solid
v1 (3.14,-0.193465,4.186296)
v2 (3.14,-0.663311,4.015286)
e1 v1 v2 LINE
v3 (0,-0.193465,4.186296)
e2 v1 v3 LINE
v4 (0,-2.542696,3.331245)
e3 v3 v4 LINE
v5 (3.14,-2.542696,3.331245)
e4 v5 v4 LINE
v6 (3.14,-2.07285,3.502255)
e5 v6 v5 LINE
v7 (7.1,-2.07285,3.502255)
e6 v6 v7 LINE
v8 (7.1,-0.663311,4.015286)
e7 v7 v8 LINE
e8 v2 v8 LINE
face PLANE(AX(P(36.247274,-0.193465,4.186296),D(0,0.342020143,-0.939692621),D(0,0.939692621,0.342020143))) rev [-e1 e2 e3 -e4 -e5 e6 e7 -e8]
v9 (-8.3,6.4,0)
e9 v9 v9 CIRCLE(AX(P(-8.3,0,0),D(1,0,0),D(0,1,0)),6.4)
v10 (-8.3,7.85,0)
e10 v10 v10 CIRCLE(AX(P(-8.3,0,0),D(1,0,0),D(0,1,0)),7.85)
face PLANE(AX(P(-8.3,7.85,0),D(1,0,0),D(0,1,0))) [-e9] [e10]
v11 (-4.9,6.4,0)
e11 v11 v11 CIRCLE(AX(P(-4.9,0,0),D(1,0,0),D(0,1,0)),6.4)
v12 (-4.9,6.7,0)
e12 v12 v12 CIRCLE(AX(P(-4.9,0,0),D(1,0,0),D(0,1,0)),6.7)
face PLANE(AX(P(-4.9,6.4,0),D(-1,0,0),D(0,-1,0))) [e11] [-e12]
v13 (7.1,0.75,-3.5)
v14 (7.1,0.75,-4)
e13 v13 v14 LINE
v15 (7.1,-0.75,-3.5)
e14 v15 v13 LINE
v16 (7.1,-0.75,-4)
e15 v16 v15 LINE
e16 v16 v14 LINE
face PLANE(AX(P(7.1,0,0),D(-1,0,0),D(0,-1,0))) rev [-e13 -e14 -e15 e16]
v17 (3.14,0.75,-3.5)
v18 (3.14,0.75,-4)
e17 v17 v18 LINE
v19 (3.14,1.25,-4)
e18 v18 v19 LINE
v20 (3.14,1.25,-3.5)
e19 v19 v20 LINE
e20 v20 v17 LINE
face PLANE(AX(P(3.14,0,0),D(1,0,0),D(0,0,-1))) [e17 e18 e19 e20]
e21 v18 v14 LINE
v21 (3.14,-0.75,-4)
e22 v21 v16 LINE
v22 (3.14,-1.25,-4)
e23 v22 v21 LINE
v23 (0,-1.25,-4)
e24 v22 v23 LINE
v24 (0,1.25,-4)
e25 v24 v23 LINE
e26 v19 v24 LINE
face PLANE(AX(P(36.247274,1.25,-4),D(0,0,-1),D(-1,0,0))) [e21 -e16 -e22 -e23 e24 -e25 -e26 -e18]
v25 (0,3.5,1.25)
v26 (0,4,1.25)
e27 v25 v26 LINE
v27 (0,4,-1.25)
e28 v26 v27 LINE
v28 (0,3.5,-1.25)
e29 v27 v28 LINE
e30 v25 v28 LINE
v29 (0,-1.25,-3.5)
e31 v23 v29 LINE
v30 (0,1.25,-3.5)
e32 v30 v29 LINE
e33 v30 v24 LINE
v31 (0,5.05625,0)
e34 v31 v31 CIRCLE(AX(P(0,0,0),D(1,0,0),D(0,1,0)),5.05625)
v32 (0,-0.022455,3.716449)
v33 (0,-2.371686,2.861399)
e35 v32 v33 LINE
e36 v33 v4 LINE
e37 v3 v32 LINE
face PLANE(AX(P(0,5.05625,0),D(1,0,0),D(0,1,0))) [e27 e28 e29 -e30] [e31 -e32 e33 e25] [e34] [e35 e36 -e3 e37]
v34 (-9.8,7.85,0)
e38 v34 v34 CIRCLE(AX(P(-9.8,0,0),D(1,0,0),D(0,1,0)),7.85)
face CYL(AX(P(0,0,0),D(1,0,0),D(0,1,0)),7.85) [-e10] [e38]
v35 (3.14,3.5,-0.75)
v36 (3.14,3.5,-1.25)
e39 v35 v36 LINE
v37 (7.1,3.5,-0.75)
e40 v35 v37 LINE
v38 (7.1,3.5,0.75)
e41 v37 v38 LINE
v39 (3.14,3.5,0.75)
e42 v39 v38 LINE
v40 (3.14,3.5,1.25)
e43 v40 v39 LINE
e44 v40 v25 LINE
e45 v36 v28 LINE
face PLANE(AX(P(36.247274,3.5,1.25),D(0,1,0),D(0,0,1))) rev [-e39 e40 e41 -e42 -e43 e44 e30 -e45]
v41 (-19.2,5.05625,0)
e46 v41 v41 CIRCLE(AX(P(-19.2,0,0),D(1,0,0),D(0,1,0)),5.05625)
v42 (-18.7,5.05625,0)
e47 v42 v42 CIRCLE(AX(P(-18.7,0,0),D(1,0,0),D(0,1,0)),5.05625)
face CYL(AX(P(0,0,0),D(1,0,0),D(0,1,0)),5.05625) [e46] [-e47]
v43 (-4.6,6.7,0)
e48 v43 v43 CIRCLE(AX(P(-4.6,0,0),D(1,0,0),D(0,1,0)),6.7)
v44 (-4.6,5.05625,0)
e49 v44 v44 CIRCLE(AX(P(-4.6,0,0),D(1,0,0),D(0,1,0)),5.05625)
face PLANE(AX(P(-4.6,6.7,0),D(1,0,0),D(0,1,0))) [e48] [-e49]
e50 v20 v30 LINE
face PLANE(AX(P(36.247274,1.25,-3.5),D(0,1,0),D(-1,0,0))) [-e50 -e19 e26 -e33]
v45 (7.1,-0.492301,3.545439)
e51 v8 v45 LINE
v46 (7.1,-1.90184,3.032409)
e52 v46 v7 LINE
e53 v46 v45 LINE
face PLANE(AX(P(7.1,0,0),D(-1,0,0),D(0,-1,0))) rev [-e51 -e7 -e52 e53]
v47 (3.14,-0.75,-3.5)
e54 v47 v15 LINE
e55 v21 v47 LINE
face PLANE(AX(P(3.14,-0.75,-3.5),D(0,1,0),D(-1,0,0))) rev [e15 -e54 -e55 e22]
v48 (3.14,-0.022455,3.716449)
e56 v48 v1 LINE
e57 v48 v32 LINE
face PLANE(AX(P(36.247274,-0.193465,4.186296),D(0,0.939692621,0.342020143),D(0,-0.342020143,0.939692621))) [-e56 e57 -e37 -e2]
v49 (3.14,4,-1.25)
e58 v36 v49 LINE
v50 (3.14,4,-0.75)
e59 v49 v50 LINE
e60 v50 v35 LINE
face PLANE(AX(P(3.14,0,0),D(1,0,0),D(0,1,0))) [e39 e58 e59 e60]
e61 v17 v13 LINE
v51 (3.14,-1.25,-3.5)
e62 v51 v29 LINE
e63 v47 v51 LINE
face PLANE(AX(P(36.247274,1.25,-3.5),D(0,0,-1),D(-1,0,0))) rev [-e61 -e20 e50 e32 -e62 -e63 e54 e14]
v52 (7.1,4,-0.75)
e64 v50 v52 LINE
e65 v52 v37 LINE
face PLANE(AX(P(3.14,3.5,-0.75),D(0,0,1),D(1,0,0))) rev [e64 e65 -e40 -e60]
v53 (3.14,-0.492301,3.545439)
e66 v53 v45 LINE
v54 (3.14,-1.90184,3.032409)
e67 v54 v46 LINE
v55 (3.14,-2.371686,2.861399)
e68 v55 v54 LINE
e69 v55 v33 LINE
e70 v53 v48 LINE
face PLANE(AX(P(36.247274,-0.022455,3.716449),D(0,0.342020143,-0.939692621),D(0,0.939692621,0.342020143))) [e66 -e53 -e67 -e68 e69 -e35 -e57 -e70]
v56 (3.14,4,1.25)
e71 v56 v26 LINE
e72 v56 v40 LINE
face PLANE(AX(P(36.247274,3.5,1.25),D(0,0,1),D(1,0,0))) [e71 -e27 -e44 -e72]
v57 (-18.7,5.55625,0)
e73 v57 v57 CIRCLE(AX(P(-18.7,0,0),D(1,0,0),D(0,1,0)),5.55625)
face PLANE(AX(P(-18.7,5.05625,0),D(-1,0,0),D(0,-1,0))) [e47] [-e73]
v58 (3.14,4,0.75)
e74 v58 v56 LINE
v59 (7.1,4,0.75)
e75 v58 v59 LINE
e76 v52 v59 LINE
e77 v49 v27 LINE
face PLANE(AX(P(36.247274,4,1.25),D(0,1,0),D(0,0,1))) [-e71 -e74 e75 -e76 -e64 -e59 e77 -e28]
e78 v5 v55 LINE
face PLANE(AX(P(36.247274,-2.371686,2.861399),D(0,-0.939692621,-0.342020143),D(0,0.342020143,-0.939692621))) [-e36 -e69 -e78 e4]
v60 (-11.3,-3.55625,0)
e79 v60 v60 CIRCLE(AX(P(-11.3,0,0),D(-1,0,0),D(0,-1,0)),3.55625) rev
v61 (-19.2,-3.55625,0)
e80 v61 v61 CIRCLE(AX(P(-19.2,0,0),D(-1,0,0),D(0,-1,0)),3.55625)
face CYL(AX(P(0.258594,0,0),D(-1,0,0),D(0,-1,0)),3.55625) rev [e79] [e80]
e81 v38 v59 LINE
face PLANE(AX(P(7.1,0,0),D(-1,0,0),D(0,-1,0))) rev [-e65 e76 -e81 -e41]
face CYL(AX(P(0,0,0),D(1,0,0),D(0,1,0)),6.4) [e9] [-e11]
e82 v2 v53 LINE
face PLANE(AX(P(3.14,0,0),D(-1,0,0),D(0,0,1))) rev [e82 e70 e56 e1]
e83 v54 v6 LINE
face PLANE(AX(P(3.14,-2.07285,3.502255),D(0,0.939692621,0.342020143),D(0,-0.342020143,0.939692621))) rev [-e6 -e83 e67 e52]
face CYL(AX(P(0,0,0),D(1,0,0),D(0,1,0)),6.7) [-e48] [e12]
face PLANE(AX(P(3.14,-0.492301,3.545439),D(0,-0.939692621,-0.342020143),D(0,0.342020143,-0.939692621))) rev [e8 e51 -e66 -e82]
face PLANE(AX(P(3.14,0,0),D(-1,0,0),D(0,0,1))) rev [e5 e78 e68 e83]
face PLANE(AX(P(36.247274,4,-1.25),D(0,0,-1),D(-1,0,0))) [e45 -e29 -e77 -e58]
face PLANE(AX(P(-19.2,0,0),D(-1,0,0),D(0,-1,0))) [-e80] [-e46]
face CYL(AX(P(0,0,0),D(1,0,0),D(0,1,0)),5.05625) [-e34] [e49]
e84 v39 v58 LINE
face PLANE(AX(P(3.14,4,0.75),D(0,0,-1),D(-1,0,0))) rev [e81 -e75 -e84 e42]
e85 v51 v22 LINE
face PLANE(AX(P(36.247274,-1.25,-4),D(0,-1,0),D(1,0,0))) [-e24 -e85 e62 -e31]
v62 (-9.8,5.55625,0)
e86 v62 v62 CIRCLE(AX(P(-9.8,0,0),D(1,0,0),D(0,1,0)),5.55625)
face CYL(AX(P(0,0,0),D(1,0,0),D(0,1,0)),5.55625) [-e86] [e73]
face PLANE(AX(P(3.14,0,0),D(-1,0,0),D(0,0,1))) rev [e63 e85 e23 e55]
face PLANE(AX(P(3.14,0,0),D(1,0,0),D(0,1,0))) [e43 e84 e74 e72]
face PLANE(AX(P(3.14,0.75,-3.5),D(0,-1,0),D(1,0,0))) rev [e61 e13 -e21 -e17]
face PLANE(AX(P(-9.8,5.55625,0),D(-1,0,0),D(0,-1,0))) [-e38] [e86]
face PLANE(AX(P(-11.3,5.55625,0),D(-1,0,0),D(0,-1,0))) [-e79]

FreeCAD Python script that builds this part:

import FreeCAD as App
import Part
import Sketcher
from FreeCAD import Vector
Q = App.Units.Quantity

doc = App.newDocument("Part")
body = doc.addObject("PartDesign::Body", "Body")

# Sketch on XY plane
sketch1 = doc.addObject("Sketcher::SketchObject", "Sketch")
body.addObject(sketch1)
sketch1.AttachmentSupport = (doc.XY_Plane, [""])
sketch1.MapMode = "FlatFace"
sketch1.addGeometry([
    Part.LineSegment(Vector(-19.2, 5.05625, 0), Vector(-19.2, 0, 0)),  # 0
    Part.LineSegment(Vector(-19.2, 0, 0), Vector(0, 0, 0)),  # 1
    Part.LineSegment(Vector(0, 0, 0), Vector(0, 5.05625, 0)),  # 2
    Part.LineSegment(Vector(0, 5.05625, 0), Vector(-4.6, 5.05625, 0)),  # 3
    Part.LineSegment(Vector(-4.6, 5.05625, 0), Vector(-4.6, 6.7, 0)),  # 4
    Part.LineSegment(Vector(-4.6, 6.7, 0), Vector(-4.9, 6.7, 0)),  # 5
    Part.LineSegment(Vector(-4.9, 6.7, 0), Vector(-4.9, 6.4, 0)),  # 6
    Part.LineSegment(Vector(-4.9, 6.4, 0), Vector(-8.3, 6.4, 0)),  # 7
    Part.LineSegment(Vector(-8.3, 6.4, 0), Vector(-8.3, 7.85, 0)),  # 8
    Part.LineSegment(Vector(-8.3, 7.85, 0), Vector(-9.8, 7.85, 0)),  # 9
    Part.LineSegment(Vector(-9.8, 7.85, 0), Vector(-9.8, 5.55625, 0)),  # 10
    Part.LineSegment(Vector(-9.8, 5.55625, 0), Vector(-18.7, 5.55625, 0)),  # 11
    Part.LineSegment(Vector(-18.7, 5.55625, 0), Vector(-18.7, 5.05625, 0)),  # 12
    Part.LineSegment(Vector(-18.7, 5.05625, 0), Vector(-19.2, 5.05625, 0)),  # 13
], False)
sketch1.addConstraint([
    Sketcher.Constraint("Coincident", 0, 2, 1, 1),
    Sketcher.Constraint("Coincident", 1, 2, 2, 1),
    Sketcher.Constraint("Coincident", 2, 2, 3, 1),
    Sketcher.Constraint("Coincident", 3, 2, 4, 1),
    Sketcher.Constraint("Coincident", 4, 2, 5, 1),
    Sketcher.Constraint("Coincident", 5, 2, 6, 1),
    Sketcher.Constraint("Coincident", 6, 2, 7, 1),
    Sketcher.Constraint("Coincident", 7, 2, 8, 1),
    Sketcher.Constraint("Coincident", 8, 2, 9, 1),
    Sketcher.Constraint("Coincident", 9, 2, 10, 1),
    Sketcher.Constraint("Coincident", 10, 2, 11, 1),
    Sketcher.Constraint("Coincident", 11, 2, 12, 1),
    Sketcher.Constraint("Coincident", 12, 2, 13, 1),
    Sketcher.Constraint("Coincident", 13, 2, 0, 1),
    Sketcher.Constraint("Vertical", 0),
    Sketcher.Constraint("Horizontal", 1),
    Sketcher.Constraint("Vertical", 2),
    Sketcher.Constraint("Horizontal", 3),
    Sketcher.Constraint("Vertical", 4),
    Sketcher.Constraint("Horizontal", 5),
    Sketcher.Constraint("Vertical", 6),
    Sketcher.Constraint("Horizontal", 7),
    Sketcher.Constraint("Vertical", 8),
    Sketcher.Constraint("Horizontal", 9),
    Sketcher.Constraint("Vertical", 10),
    Sketcher.Constraint("Horizontal", 11),
    Sketcher.Constraint("Vertical", 12),
    Sketcher.Constraint("Horizontal", 13),
    Sketcher.Constraint("Coincident", 1, 2, -1, 1),
    Sketcher.Constraint("Horizontal", 3, 2, 12, 2),
    Sketcher.Constraint("Equal", 5, 6),
    Sketcher.Constraint("Equal", 13, 12),
    Sketcher.Constraint("DistanceX", 1, 1, 1, 2, Q("19.2 mm")),
    Sketcher.Constraint("DistanceX", 3, 2, 3, 1, Q("4.6 mm")),
    Sketcher.Constraint("DistanceX", 5, 2, 5, 1, Q("0.3 mm")),
    Sketcher.Constraint("DistanceX", 7, 2, 7, 1, Q("3.4 mm")),
    Sketcher.Constraint("DistanceX", 9, 2, 9, 1, Q("1.5 mm")),
    Sketcher.Constraint("DistanceX", 11, 2, 11, 1, Q("8.9 mm")),
    Sketcher.Constraint("DistanceY", 8, 1, 8, 2, Q("1.45 mm")),
    Sketcher.Constraint("DistanceY", -1, 1, 4, 2, Q("6.7 mm")),
    Sketcher.Constraint("DistanceY", 0, 2, 0, 1, Q("5.05625 mm")),
])
revolution = doc.addObject("PartDesign::Revolution", "Revolution")
body.addObject(revolution)
revolution.Profile = sketch1
revolution.ReferenceAxis = (sketch1, ["H_Axis"])
revolution.Angle = 360

# Sketch on YZ plane
sketch2 = doc.addObject("Sketcher::SketchObject", "Sketch001")
body.addObject(sketch2)
sketch2.AttachmentSupport = (doc.YZ_Plane, [""])
sketch2.MapMode = "FlatFace"
sketch2.AttachmentOffset = App.Placement(Vector(0, 0, -19.2), App.Rotation())
sketch2.addGeometry(Part.Circle(Vector(0, 0, 0), Vector(0, 0, 1), 3.55625), False)
sketch2.addConstraint([
    Sketcher.Constraint("Coincident", 0, 3, -1, 1),
    Sketcher.Constraint("Diameter", 0, Q("7.1125 mm")),
])
pocket1 = doc.addObject("PartDesign::Pocket", "Pocket")
body.addObject(pocket1)
pocket1.Profile = sketch2
pocket1.Length = 7.9
pocket1.Reversed = True

# Sketch on YZ plane
sketch3 = doc.addObject("Sketcher::SketchObject", "Sketch002")
body.addObject(sketch3)
sketch3.AttachmentSupport = (doc.YZ_Plane, [""])
sketch3.MapMode = "FlatFace"
sketch3.addGeometry([
    Part.LineSegment(Vector(4, 1.25, 0), Vector(3.5, 1.25, 0)),  # 0
    Part.LineSegment(Vector(3.5, 1.25, 0), Vector(3.5, -1.25, 0)),  # 1
    Part.LineSegment(Vector(3.5, -1.25, 0), Vector(4, -1.25, 0)),  # 2
    Part.LineSegment(Vector(4, -1.25, 0), Vector(4, 1.25, 0)),  # 3
    Part.LineSegment(Vector(1.25, -3.5, 0), Vector(-1.25, -3.5, 0)),  # 4
    Part.LineSegment(Vector(-1.25, -3.5, 0), Vector(-1.25, -4, 0)),  # 5
    Part.LineSegment(Vector(-1.25, -4, 0), Vector(1.25, -4, 0)),  # 6
    Part.LineSegment(Vector(1.25, -4, 0), Vector(1.25, -3.5, 0)),  # 7
    Part.LineSegment(Vector(-0.193465, 4.186296, 0), Vector(-2.542696, 3.331245, 0)),  # 8
    Part.LineSegment(Vector(-2.542696, 3.331245, 0), Vector(-2.371686, 2.861399, 0)),  # 9
    Part.LineSegment(Vector(-2.371686, 2.861399, 0), Vector(-0.022455, 3.716449, 0)),  # 10
    Part.LineSegment(Vector(-0.022455, 3.716449, 0), Vector(-0.193465, 4.186296, 0)),  # 11
], False)
sketch3.addConstraint([
    Sketcher.Constraint("Coincident", 0, 2, 1, 1),
    Sketcher.Constraint("Coincident", 1, 2, 2, 1),
    Sketcher.Constraint("Coincident", 2, 2, 3, 1),
    Sketcher.Constraint("Coincident", 3, 2, 0, 1),
    Sketcher.Constraint("Coincident", 4, 2, 5, 1),
    Sketcher.Constraint("Coincident", 5, 2, 6, 1),
    Sketcher.Constraint("Coincident", 6, 2, 7, 1),
    Sketcher.Constraint("Coincident", 7, 2, 4, 1),
    Sketcher.Constraint("Coincident", 8, 2, 9, 1),
    Sketcher.Constraint("Coincident", 9, 2, 10, 1),
    Sketcher.Constraint("Coincident", 10, 2, 11, 1),
    Sketcher.Constraint("Coincident", 11, 2, 8, 1),
    Sketcher.Constraint("Horizontal", 0),
    Sketcher.Constraint("Vertical", 1),
    Sketcher.Constraint("Horizontal", 2),
    Sketcher.Constraint("Vertical", 3),
    Sketcher.Constraint("Horizontal", 4),
    Sketcher.Constraint("Vertical", 5),
    Sketcher.Constraint("Horizontal", 6),
    Sketcher.Constraint("Vertical", 7),
    Sketcher.Constraint("Perpendicular", 8, 9),
    Sketcher.Constraint("Perpendicular", 9, 10),
    Sketcher.Constraint("Perpendicular", 10, 11),
    Sketcher.Constraint("Equal", 6, 1),
    Sketcher.Constraint("Equal", 2, 5),
    Sketcher.Constraint("Angle", 8, Q("-160 deg")),
    Sketcher.Constraint("DistanceX", 0, 2, 0, 1, Q("0.5 mm")),
    Sketcher.Constraint("DistanceX", 4, 2, 4, 1, Q("2.5 mm")),
    Sketcher.Constraint("DistanceX", -1, 1, 2, 2, Q("4 mm")),
    Sketcher.Constraint("DistanceY", 5, 2, -1, 1, Q("4 mm")),
    Sketcher.Constraint("Distance", 8, Q("2.5 mm")),
    Sketcher.Constraint("Distance", 9, Q("0.5 mm")),
    Sketcher.Constraint("DistanceY", -1, 1, 0, 2, Q("1.25 mm")),
    Sketcher.Constraint("DistanceX", 4, 2, -1, 1, Q("1.25 mm")),
    Sketcher.Constraint("DistanceY", -1, 1, 9, 2, Q("2.861399 mm")),
    Sketcher.Constraint("DistanceX", 8, 2, -1, 1, Q("2.542696 mm")),
])
pad1 = doc.addObject("PartDesign::Pad", "Pad")
body.addObject(pad1)
pad1.Profile = sketch3
pad1.Length = 7.1

# Sketch on YZ plane
sketch4 = doc.addObject("Sketcher::SketchObject", "Sketch003")
body.addObject(sketch4)
sketch4.AttachmentSupport = (doc.YZ_Plane, [""])
sketch4.MapMode = "FlatFace"
sketch4.AttachmentOffset = App.Placement(Vector(0, 0, 7.1), App.Rotation())
sketch4.addGeometry([
    Part.LineSegment(Vector(4, 1.25, 0), Vector(3.5, 1.25, 0)),  # 0
    Part.LineSegment(Vector(3.5, 1.25, 0), Vector(3.5, 0.75, 0)),  # 1
    Part.LineSegment(Vector(3.5, 0.75, 0), Vector(4, 0.75, 0)),  # 2
    Part.LineSegment(Vector(4, 0.75, 0), Vector(4, 1.25, 0)),  # 3
    Part.LineSegment(Vector(4, -0.75, 0), Vector(3.5, -0.75, 0)),  # 4
    Part.LineSegment(Vector(3.5, -0.75, 0), Vector(3.5, -1.25, 0)),  # 5
    Part.LineSegment(Vector(3.5, -1.25, 0), Vector(4, -1.25, 0)),  # 6
    Part.LineSegment(Vector(4, -1.25, 0), Vector(4, -0.75, 0)),  # 7
    Part.LineSegment(Vector(1.25, -3.5, 0), Vector(0.75, -3.5, 0)),  # 8
    Part.LineSegment(Vector(0.75, -3.5, 0), Vector(0.75, -4, 0)),  # 9
    Part.LineSegment(Vector(0.75, -4, 0), Vector(1.25, -4, 0)),  # 10
    Part.LineSegment(Vector(1.25, -4, 0), Vector(1.25, -3.5, 0)),  # 11
    Part.LineSegment(Vector(-0.75, -3.5, 0), Vector(-1.25, -3.5, 0)),  # 12
    Part.LineSegment(Vector(-1.25, -3.5, 0), Vector(-1.25, -4, 0)),  # 13
    Part.LineSegment(Vector(-1.25, -4, 0), Vector(-0.75, -4, 0)),  # 14
    Part.LineSegment(Vector(-0.75, -4, 0), Vector(-0.75, -3.5, 0)),  # 15
    Part.LineSegment(Vector(-2.542696, 3.331245, 0), Vector(-2.371686, 2.861399, 0)),  # 16
    Part.LineSegment(Vector(-2.371686, 2.861399, 0), Vector(-1.90184, 3.032409, 0)),  # 17
    Part.LineSegment(Vector(-1.90184, 3.032409, 0), Vector(-2.07285, 3.502255, 0)),  # 18
    Part.LineSegment(Vector(-2.07285, 3.502255, 0), Vector(-2.542696, 3.331245, 0)),  # 19
    Part.LineSegment(Vector(-0.022455, 3.716449, 0), Vector(-0.193465, 4.186296, 0)),  # 20
    Part.LineSegment(Vector(-0.193465, 4.186296, 0), Vector(-0.663311, 4.015286, 0)),  # 21
    Part.LineSegment(Vector(-0.663311, 4.015286, 0), Vector(-0.492301, 3.545439, 0)),  # 22
    Part.LineSegment(Vector(-0.492301, 3.545439, 0), Vector(-0.022455, 3.716449, 0)),  # 23
], False)
sketch4.addConstraint([
    Sketcher.Constraint("Coincident", 0, 2, 1, 1),
    Sketcher.Constraint("Coincident", 1, 2, 2, 1),
    Sketcher.Constraint("Coincident", 2, 2, 3, 1),
    Sketcher.Constraint("Coincident", 3, 2, 0, 1),
    Sketcher.Constraint("Coincident", 4, 2, 5, 1),
    Sketcher.Constraint("Coincident", 5, 2, 6, 1),
    Sketcher.Constraint("Coincident", 6, 2, 7, 1),
    Sketcher.Constraint("Coincident", 7, 2, 4, 1),
    Sketcher.Constraint("Coincident", 8, 2, 9, 1),
    Sketcher.Constraint("Coincident", 9, 2, 10, 1),
    Sketcher.Constraint("Coincident", 10, 2, 11, 1),
    Sketcher.Constraint("Coincident", 11, 2, 8, 1),
    Sketcher.Constraint("Coincident", 12, 2, 13, 1),
    Sketcher.Constraint("Coincident", 13, 2, 14, 1),
    Sketcher.Constraint("Coincident", 14, 2, 15, 1),
    Sketcher.Constraint("Coincident", 15, 2, 12, 1),
    Sketcher.Constraint("Coincident", 16, 2, 17, 1),
    Sketcher.Constraint("Coincident", 17, 2, 18, 1),
    Sketcher.Constraint("Coincident", 18, 2, 19, 1),
    Sketcher.Constraint("Coincident", 19, 2, 16, 1),
    Sketcher.Constraint("Coincident", 20, 2, 21, 1),
    Sketcher.Constraint("Coincident", 21, 2, 22, 1),
    Sketcher.Constraint("Coincident", 22, 2, 23, 1),
    Sketcher.Constraint("Coincident", 23, 2, 20, 1),
    Sketcher.Constraint("Horizontal", 0),
    Sketcher.Constraint("Vertical", 1),
    Sketcher.Constraint("Horizontal", 2),
    Sketcher.Constraint("Vertical", 3),
    Sketcher.Constraint("Horizontal", 4),
    Sketcher.Constraint("Vertical", 5),
    Sketcher.Constraint("Horizontal", 6),
    Sketcher.Constraint("Vertical", 7),
    Sketcher.Constraint("Horizontal", 8),
    Sketcher.Constraint("Vertical", 9),
    Sketcher.Constraint("Horizontal", 10),
    Sketcher.Constraint("Vertical", 11),
    Sketcher.Constraint("Horizontal", 12),
    Sketcher.Constraint("Vertical", 13),
    Sketcher.Constraint("Horizontal", 14),
    Sketcher.Constraint("Vertical", 15),
    Sketcher.Constraint("Symmetric", 11, 2, 12, 2, -2),
    Sketcher.Constraint("Symmetric", 9, 2, 14, 2, -2),
    Sketcher.Constraint("Symmetric", 1, 2, 4, 2, -1),
    Sketcher.Constraint("Symmetric", 3, 2, 6, 2, -1),
    Sketcher.Constraint("Perpendicular", 16, 17),
    Sketcher.Constraint("Perpendicular", 17, 18),
    Sketcher.Constraint("Perpendicular", 18, 19),
    Sketcher.Constraint("Perpendicular", 19, 20),
    Sketcher.Constraint("Perpendicular", 20, 21),
    Sketcher.Constraint("Perpendicular", 21, 22),
    Sketcher.Constraint("Perpendicular", 22, 23),
    Sketcher.Constraint("Equal", 6, 8),
    Sketcher.Constraint("Equal", 14, 1),
    Sketcher.Constraint("Equal", 7, 9),
    Sketcher.Constraint("Equal", 16, 17),
    Sketcher.Constraint("Equal", 19, 20),
    Sketcher.Constraint("Equal", 20, 21),
    Sketcher.Constraint("Angle", 16, Q("-70 deg")),
    Sketcher.Constraint("DistanceX", 0, 2, 0, 1, Q("0.5 mm")),
    Sketcher.Constraint("DistanceX", -1, 1, 2, 2, Q("4 mm")),
    Sketcher.Constraint("DistanceY", 9, 2, -1, 1, Q("4 mm")),
    Sketcher.Constraint("DistanceY", 4, 2, 0, 2, Q("2 mm")),
    Sketcher.Constraint("DistanceX", 12, 2, 8, 2, Q("2 mm")),
    Sketcher.Constraint("Distance", 16, Q("0.5 mm")),
    Sketcher.Constraint("DistanceY", -1, 1, 16, 2, Q("2.861399 mm")),
    Sketcher.Constraint("DistanceX", 22, 2, -1, 1, Q("0.492301 mm")),
    Sketcher.Constraint("DistanceX", 17, 2, -1, 1, Q("1.90184 mm")),
    Sketcher.Constraint("DistanceY", -1, 1, 22, 2, Q("3.545439 mm")),
])
pocket2 = doc.addObject("PartDesign::Pocket", "Pocket001")
body.addObject(pocket2)
pocket2.Profile = sketch4
pocket2.Length = 3.96

doc.recompute()
